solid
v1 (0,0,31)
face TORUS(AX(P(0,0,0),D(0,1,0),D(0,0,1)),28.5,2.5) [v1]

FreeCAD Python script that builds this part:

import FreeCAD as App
import Part
import Sketcher

doc = App.newDocument("Part")
params = doc.addObject("Spreadsheet::Sheet", "Params")
for row, (alias, value) in enumerate([
    ("sketch1_diameter", "5 mm"),
    ("revolution_angle", "360 deg"),
], start=1):
    params.set(f"A{row}", alias)
    params.set(f"B{row}", "=" + value)
    params.setAlias(f"B{row}", alias)

body = doc.addObject("PartDesign::Body", "Body")

# Sketch on YZ plane
sketch1 = body.newObject("Sketcher::SketchObject", "Sketch")
sketch1.AttachmentSupport = (doc.getObject("YZ_Plane"), [""])
sketch1.MapMode = "FlatFace"
sketch1.addGeometry(Part.Circle(App.Vector(0, 28.5, 0), App.Vector(0, 0, 1), 2.5), False)
sketch1.addConstraint([
    Sketcher.Constraint("PointOnObject", 0, 3, -2),
    Sketcher.Constraint("Diameter", 0, 5.0),
    Sketcher.Constraint("DistanceY", -1, 1, 0, 3, 28.5),
])
sketch1.setExpression("Constraints[1]", "Params.sketch1_diameter")
revolution = body.newObject("PartDesign::Revolution", "Revolution")
revolution.Profile = sketch1
revolution.ReferenceAxis = (sketch1, ["H_Axis"])
revolution.setExpression("Angle", "Params.revolution_angle")

doc.recompute()
